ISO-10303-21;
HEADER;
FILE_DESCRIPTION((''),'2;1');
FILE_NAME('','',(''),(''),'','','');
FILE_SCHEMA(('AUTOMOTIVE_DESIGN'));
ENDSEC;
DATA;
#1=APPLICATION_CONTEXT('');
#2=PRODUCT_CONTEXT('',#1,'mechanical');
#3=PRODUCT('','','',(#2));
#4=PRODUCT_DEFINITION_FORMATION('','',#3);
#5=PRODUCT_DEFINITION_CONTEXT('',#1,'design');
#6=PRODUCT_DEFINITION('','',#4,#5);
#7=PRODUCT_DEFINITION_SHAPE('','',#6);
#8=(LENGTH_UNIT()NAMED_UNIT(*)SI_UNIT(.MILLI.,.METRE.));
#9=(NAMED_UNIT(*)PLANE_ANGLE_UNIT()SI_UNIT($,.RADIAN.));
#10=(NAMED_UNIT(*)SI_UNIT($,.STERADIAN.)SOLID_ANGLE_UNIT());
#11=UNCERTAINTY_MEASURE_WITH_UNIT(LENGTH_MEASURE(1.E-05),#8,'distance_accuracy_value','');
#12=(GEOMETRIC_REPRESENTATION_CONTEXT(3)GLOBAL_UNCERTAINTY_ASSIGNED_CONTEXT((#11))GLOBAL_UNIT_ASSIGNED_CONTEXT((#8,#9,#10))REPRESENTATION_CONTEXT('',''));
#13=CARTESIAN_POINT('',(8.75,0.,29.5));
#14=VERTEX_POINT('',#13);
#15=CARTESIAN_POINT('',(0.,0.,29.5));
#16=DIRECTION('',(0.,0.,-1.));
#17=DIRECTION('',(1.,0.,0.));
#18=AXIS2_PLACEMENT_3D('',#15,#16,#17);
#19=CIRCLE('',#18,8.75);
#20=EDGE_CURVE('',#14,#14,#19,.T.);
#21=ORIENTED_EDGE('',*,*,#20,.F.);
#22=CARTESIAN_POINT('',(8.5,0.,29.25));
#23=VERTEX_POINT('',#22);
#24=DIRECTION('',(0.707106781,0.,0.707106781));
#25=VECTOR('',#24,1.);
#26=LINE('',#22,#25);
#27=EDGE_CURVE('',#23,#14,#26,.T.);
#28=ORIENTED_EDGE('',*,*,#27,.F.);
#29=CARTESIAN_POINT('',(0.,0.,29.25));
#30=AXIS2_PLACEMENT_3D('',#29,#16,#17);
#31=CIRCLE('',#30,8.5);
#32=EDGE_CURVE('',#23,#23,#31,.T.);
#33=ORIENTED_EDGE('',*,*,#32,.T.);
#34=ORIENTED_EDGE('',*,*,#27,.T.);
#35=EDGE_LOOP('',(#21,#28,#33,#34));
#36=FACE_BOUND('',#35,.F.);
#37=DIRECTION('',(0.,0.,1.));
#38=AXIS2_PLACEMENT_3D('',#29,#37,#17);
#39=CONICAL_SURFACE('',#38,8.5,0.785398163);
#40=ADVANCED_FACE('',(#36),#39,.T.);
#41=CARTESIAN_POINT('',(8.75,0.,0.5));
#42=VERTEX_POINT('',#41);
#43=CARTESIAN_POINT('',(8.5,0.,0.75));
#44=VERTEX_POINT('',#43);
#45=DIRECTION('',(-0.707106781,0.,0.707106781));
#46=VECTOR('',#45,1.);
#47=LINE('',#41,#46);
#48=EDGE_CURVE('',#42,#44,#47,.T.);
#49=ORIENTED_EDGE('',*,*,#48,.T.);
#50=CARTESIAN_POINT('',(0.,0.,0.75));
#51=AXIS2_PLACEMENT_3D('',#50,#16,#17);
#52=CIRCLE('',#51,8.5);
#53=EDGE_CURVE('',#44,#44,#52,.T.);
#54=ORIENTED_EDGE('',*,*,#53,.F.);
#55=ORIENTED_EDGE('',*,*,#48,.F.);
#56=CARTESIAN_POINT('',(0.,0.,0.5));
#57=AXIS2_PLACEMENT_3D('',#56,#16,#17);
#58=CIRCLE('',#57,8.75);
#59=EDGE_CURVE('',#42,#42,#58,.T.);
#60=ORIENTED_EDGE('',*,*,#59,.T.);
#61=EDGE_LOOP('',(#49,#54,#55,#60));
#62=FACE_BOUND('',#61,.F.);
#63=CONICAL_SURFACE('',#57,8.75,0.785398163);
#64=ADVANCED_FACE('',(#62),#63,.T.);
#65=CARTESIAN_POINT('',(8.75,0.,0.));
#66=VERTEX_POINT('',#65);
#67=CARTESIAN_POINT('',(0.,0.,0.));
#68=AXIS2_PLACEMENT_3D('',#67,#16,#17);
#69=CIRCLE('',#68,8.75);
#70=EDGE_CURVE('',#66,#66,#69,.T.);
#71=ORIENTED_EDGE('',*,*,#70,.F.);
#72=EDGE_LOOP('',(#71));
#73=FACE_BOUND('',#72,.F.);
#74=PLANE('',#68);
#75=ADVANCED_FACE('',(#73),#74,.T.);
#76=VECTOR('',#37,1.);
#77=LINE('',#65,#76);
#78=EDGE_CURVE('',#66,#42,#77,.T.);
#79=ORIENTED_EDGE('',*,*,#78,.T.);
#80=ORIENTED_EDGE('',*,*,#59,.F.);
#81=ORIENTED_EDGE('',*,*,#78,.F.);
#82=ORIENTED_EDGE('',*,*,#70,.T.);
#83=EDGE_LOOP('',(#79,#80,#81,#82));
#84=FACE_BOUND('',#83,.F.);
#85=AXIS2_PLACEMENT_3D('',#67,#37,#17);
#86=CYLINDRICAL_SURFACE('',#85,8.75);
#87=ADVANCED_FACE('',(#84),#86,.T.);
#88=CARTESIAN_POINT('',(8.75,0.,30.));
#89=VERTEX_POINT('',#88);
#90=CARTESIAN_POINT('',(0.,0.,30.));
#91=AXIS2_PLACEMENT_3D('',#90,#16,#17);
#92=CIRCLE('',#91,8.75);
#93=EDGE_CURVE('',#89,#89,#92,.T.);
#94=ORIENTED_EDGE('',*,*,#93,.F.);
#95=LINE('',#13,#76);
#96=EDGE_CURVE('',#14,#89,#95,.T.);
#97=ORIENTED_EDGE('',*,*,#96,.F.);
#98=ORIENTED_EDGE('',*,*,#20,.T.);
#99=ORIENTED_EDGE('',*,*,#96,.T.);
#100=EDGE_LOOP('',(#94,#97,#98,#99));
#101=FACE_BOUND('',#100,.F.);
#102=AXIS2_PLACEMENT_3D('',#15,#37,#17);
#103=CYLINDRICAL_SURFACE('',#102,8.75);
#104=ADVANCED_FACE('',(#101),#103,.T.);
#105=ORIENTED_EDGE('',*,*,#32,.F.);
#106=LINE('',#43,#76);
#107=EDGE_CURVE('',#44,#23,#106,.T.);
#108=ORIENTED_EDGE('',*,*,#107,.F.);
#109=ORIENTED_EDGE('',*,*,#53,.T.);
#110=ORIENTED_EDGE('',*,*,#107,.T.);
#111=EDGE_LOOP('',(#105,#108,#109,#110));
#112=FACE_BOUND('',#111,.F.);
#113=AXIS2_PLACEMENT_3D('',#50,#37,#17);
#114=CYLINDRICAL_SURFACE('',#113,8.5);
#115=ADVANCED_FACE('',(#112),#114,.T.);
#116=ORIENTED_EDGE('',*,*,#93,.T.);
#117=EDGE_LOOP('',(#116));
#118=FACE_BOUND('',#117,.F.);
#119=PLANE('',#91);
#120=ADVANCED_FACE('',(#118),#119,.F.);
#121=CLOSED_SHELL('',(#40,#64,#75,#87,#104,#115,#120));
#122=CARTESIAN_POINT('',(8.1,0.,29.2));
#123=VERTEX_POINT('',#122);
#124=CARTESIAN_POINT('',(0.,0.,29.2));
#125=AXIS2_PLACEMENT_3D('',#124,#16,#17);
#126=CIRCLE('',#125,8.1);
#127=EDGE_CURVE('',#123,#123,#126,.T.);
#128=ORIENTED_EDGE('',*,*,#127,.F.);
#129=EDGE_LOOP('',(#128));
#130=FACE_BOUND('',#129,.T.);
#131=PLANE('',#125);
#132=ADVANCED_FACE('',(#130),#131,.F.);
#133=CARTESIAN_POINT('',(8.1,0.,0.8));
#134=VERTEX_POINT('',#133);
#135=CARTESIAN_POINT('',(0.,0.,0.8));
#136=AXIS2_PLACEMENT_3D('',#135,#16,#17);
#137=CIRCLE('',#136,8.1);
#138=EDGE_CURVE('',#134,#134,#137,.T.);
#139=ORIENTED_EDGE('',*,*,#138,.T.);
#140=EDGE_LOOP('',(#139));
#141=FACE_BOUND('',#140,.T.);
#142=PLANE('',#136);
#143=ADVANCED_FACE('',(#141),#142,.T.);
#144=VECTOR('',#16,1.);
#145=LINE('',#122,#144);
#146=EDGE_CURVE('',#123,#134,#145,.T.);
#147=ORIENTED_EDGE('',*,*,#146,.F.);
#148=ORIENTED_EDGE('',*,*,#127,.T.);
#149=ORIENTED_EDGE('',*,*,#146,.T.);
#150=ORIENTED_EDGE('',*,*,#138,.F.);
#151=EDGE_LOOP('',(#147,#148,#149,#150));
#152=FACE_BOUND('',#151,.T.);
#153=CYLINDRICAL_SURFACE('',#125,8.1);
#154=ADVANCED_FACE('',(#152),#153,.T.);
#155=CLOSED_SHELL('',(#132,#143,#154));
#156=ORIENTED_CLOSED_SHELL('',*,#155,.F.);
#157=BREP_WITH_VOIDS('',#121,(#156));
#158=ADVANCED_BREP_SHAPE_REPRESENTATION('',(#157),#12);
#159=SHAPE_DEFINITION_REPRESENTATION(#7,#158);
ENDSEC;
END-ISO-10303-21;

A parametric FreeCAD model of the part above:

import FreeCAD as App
import Part
import Sketcher

V = App.Vector
Q = App.Units.Quantity

doc = App.newDocument("Part")
body = doc.addObject("PartDesign::Body", "Body")

# Sketch on XZ plane
sketch1 = doc.addObject("Sketcher::SketchObject", "Sketch")
body.addObject(sketch1)
sketch1.AttachmentSupport = (doc.XZ_Plane, [""])
sketch1.MapMode = "FlatFace"
sketch1.addGeometry([
    Part.LineSegment(V(8.75, 30, 0), V(0, 30, 0)),  # 0
    Part.LineSegment(V(0, 30, 0), V(0, 29.2, 0)),  # 1
    Part.LineSegment(V(0, 29.2, 0), V(8.1, 29.2, 0)),  # 2
    Part.LineSegment(V(8.1, 29.2, 0), V(8.1, 0.8, 0)),  # 3
    Part.LineSegment(V(8.1, 0.8, 0), V(0, 0.8, 0)),  # 4
    Part.LineSegment(V(0, 0.8, 0), V(0, 0, 0)),  # 5
    Part.LineSegment(V(0, 0, 0), V(8.75, 0, 0)),  # 6
    Part.LineSegment(V(8.75, 0, 0), V(8.75, 0.5, 0)),  # 7
    Part.LineSegment(V(8.75, 0.5, 0), V(8.5, 0.75, 0)),  # 8
    Part.LineSegment(V(8.5, 0.75, 0), V(8.5, 29.25, 0)),  # 9
    Part.LineSegment(V(8.5, 29.25, 0), V(8.75, 29.5, 0)),  # 10
    Part.LineSegment(V(8.75, 29.5, 0), V(8.75, 30, 0)),  # 11
], False)
sketch1.addConstraint([
    Sketcher.Constraint("Coincident", 0, 2, 1, 1),
    Sketcher.Constraint("Coincident", 1, 2, 2, 1),
    Sketcher.Constraint("Coincident", 2, 2, 3, 1),
    Sketcher.Constraint("Coincident", 3, 2, 4, 1),
    Sketcher.Constraint("Coincident", 4, 2, 5, 1),
    Sketcher.Constraint("Coincident", 5, 2, 6, 1),
    Sketcher.Constraint("Coincident", 6, 2, 7, 1),
    Sketcher.Constraint("Coincident", 7, 2, 8, 1),
    Sketcher.Constraint("Coincident", 8, 2, 9, 1),
    Sketcher.Constraint("Coincident", 9, 2, 10, 1),
    Sketcher.Constraint("Coincident", 10, 2, 11, 1),
    Sketcher.Constraint("Coincident", 11, 2, 0, 1),
    Sketcher.Constraint("Horizontal", 0),
    Sketcher.Constraint("Vertical", 1),
    Sketcher.Constraint("Horizontal", 2),
    Sketcher.Constraint("Vertical", 3),
    Sketcher.Constraint("Horizontal", 4),
    Sketcher.Constraint("Vertical", 5),
    Sketcher.Constraint("Horizontal", 6),
    Sketcher.Constraint("Vertical", 7),
    Sketcher.Constraint("Vertical", 9),
    Sketcher.Constraint("Vertical", 11),
    Sketcher.Constraint("Coincident", 5, 2, -1, 1),
    Sketcher.Constraint("PointOnObject", 0, 2, -2),
    Sketcher.Constraint("Perpendicular", 8, 10),
    Sketcher.Constraint("Vertical", 7, 2, 10, 2),
    Sketcher.Constraint("Equal", 1, 5),
    Sketcher.Constraint("Equal", 7, 11),
    Sketcher.Constraint("Equal", 8, 10),
    Sketcher.Constraint("DistanceX", 2, 1, 2, 2, Q("8.1 mm")),
    Sketcher.Constraint("DistanceY", 1, 2, 1, 1, Q("0.8 mm")),
    Sketcher.Constraint("DistanceY", 3, 2, 3, 1, Q("28.4 mm")),
    Sketcher.Constraint("DistanceY", 7, 1, 7, 2, Q("0.5 mm")),
    Sketcher.Constraint("DistanceY", 9, 1, 9, 2, Q("28.5 mm")),
    Sketcher.Constraint("DistanceX", 0, 2, 0, 1, Q("8.75 mm")),
])
revolution = doc.addObject("PartDesign::Revolution", "Revolution")
body.addObject(revolution)
revolution.Profile = sketch1
revolution.ReferenceAxis = (sketch1, ["V_Axis"])
revolution.Angle = 360

doc.recompute()
